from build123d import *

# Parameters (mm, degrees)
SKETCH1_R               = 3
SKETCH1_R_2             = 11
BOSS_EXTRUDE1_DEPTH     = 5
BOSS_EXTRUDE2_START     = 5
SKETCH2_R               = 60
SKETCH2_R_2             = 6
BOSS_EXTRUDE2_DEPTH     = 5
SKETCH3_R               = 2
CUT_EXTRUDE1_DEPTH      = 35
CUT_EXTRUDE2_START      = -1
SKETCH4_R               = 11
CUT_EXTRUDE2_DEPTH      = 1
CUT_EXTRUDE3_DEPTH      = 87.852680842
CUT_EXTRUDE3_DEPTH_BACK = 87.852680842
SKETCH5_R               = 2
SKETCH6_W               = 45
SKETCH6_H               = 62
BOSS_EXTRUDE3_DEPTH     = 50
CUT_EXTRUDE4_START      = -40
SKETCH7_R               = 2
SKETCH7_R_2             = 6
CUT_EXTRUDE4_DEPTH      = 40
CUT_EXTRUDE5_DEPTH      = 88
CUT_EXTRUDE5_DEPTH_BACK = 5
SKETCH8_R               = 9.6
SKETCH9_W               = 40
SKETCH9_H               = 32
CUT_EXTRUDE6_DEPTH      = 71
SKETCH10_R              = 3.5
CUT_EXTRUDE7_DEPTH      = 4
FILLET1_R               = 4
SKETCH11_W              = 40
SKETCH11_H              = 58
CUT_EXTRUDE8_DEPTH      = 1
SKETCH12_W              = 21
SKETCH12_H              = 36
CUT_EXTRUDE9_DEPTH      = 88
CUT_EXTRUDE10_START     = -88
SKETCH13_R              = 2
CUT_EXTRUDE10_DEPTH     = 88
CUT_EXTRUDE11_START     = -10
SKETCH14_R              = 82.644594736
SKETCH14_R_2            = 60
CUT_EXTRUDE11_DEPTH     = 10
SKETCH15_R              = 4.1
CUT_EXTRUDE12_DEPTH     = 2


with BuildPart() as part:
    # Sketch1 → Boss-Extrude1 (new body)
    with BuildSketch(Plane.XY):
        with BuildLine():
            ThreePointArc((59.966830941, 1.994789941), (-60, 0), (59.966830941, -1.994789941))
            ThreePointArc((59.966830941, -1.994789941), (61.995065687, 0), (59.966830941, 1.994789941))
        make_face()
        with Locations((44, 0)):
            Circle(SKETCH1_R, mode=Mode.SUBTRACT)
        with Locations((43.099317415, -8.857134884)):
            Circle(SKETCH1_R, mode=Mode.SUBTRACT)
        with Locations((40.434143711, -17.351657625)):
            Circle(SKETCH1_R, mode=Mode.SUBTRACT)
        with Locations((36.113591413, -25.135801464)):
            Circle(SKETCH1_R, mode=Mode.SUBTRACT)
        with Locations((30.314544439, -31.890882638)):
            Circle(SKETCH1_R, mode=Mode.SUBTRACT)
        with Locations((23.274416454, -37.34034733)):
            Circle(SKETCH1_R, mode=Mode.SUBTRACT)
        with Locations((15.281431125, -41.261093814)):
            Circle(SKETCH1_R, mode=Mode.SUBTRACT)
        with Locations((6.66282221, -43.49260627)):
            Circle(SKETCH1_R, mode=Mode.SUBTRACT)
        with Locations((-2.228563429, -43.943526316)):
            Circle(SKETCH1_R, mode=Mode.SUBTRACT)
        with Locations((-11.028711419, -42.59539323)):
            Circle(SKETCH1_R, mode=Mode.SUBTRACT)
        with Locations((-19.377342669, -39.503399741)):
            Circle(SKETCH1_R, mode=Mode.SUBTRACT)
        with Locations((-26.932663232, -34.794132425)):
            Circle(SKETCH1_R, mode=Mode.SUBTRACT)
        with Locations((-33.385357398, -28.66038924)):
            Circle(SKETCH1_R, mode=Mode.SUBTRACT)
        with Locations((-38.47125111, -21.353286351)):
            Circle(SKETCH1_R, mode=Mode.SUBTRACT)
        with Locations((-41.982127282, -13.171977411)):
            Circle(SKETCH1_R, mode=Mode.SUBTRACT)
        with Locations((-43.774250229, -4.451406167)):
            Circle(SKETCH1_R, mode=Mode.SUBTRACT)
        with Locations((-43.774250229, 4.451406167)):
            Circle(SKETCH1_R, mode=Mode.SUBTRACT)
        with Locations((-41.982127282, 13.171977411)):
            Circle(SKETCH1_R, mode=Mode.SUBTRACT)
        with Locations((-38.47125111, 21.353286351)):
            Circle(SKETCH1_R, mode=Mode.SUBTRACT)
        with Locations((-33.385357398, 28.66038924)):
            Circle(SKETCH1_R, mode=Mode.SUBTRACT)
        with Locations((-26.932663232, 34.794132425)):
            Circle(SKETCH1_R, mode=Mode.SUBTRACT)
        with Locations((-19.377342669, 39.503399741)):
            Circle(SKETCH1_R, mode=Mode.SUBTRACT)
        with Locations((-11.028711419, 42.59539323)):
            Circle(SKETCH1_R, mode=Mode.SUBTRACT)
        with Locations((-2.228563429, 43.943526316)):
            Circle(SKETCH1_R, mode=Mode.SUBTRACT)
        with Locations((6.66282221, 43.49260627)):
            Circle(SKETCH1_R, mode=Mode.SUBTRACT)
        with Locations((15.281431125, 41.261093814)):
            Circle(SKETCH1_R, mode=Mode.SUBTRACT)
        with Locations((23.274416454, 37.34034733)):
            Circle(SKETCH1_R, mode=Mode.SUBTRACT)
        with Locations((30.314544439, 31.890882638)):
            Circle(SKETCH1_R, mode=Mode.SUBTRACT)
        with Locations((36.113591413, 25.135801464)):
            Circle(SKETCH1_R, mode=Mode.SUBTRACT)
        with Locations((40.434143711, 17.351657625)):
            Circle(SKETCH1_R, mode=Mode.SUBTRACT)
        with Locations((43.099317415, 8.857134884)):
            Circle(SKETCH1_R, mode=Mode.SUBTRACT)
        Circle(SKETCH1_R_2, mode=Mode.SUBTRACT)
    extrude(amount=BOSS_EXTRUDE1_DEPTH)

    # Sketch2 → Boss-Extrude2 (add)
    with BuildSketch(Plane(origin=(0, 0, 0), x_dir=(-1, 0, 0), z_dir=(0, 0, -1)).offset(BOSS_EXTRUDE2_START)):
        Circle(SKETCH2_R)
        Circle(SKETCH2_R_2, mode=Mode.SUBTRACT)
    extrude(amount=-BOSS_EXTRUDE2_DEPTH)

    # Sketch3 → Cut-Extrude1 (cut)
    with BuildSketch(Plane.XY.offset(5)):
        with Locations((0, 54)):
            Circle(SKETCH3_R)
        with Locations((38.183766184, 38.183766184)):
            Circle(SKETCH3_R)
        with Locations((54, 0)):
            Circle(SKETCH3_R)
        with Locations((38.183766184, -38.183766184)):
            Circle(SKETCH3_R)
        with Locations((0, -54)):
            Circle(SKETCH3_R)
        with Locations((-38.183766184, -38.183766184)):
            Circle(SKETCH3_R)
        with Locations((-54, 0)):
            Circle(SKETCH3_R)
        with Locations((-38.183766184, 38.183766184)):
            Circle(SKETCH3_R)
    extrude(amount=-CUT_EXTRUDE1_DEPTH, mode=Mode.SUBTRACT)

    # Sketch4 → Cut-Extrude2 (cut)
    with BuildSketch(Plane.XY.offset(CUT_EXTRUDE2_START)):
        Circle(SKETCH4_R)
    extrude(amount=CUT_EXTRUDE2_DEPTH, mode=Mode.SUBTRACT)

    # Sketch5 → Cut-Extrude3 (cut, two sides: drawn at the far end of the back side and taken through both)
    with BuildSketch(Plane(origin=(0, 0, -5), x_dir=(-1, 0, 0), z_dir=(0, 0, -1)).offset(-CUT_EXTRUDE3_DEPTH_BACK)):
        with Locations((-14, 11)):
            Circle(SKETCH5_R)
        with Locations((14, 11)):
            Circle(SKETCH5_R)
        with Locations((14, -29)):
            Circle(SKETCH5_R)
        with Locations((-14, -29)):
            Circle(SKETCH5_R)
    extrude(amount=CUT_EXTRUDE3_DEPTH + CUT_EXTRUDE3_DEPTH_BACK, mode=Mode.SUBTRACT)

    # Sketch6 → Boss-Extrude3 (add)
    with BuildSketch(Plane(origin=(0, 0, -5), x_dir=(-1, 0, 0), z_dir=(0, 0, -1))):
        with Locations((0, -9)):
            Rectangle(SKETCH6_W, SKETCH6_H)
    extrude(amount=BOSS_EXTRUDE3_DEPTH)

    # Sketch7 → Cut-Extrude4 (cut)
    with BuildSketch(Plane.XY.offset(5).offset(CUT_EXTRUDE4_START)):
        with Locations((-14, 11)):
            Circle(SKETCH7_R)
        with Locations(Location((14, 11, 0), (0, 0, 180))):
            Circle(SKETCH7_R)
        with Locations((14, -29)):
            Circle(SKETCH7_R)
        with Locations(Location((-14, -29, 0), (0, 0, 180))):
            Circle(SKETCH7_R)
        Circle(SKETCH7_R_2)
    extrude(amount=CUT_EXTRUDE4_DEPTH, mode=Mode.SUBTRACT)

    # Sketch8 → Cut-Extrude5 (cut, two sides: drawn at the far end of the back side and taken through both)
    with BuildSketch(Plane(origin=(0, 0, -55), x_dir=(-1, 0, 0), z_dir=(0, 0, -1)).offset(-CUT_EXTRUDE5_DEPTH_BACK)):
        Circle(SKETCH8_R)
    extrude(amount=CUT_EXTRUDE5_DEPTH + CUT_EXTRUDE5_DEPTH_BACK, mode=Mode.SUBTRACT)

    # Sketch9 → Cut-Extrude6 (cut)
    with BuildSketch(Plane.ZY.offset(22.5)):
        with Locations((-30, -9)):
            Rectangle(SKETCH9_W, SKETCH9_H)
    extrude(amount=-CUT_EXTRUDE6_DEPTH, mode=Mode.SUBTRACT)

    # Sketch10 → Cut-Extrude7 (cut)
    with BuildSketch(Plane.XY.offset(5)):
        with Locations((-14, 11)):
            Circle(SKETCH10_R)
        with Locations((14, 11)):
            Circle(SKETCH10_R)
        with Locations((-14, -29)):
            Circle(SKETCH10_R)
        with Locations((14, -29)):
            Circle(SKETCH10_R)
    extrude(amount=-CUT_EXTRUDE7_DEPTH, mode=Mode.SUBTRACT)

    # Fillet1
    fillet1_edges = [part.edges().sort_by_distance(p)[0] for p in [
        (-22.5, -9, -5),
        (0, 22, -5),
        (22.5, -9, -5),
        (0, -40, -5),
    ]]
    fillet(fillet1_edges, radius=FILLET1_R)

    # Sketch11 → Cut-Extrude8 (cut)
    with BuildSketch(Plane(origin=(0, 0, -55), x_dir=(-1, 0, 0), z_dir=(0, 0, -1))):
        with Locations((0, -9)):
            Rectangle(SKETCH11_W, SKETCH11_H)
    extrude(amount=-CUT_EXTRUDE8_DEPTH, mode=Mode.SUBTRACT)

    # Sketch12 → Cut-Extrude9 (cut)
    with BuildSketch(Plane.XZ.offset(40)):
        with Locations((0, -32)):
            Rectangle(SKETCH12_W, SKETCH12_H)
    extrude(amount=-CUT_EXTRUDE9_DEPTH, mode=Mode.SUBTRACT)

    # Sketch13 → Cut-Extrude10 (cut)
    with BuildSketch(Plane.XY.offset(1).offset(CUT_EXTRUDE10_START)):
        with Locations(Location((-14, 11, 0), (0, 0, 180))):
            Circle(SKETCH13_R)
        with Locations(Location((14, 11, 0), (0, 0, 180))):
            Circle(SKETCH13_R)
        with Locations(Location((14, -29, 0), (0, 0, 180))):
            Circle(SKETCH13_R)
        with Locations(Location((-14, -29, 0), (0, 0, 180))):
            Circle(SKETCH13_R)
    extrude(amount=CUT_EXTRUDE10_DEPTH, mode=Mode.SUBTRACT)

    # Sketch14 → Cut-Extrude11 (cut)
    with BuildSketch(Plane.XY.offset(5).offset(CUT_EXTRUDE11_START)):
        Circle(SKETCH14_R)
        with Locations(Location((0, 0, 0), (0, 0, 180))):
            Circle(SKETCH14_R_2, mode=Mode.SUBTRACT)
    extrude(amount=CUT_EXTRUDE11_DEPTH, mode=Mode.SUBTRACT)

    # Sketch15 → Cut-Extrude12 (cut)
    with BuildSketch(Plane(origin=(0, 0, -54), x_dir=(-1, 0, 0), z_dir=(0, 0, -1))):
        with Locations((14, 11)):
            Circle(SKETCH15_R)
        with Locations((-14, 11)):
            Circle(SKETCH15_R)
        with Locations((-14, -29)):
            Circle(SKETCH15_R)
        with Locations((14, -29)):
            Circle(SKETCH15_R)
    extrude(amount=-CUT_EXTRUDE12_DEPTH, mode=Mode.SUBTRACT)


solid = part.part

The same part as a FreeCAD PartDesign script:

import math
import FreeCAD as App
import Part
import Sketcher

V = App.Vector
Q = App.Units.Quantity


def edges_at(feature, points):
    """Names of the edges that pass closest to the given points."""
    edges = feature.Shape.Edges
    near = lambda p: min(range(len(edges)), key=lambda i: edges[i].distToShape(Part.Vertex(*p))[0])
    return sorted({f"Edge{near(p) + 1}" for p in points})


def add_polygon(sketch, points):
    """Adds a closed chain of lines whose ends are joined by coincident constraints."""
    first, n = sketch.GeometryCount, len(points)
    for a, b in zip(points, points[1:] + points[:1]):
        sketch.addGeometry(Part.LineSegment(App.Vector(*a, 0), App.Vector(*b, 0)), False)
    for i in range(n):
        sketch.addConstraint(Sketcher.Constraint("Coincident", first + i, 2, first + (i + 1) % n, 1))

doc = App.newDocument("Part")
body = doc.addObject("PartDesign::Body", "Body")

# Sketch on XY plane
sketch1 = body.newObject("Sketcher::SketchObject", "Sketch")
sketch1.AttachmentSupport = (doc.getObject("XY_Plane"), [""])
sketch1.MapMode = "FlatFace"
sketch1.addGeometry([
    Part.ArcOfCircle(Part.Circle(V(0, 0, 0), V(0, 0, 1), 60), math.radians(2), math.radians(358)),  # 0
    Part.ArcOfCircle(Part.Circle(V(60, 0, 0), V(0, 0, 1), 2), math.radians(-91), math.radians(91)),  # 1
    Part.Circle(V(-26.9, -34.8, 0), V(0, 0, 1), 3),  # 2
    Part.Circle(V(-33.4, -28.7, 0), V(0, 0, 1), 3),  # 3
    Part.Circle(V(-19.4, -39.5, 0), V(0, 0, 1), 3),  # 4
    Part.Circle(V(-11, -42.6, 0), V(0, 0, 1), 3),  # 5
    Part.Circle(V(-2.2, -43.9, 0), V(0, 0, 1), 3),  # 6
    Part.Circle(V(-38.5, -21.4, 0), V(0, 0, 1), 3),  # 7
    Part.Circle(V(-42, -13.2, 0), V(0, 0, 1), 3),  # 8
    Part.Circle(V(-43.8, -4.5, 0), V(0, 0, 1), 3),  # 9
    Part.Circle(V(6.7, -43.5, 0), V(0, 0, 1), 3),  # 10
    Part.Circle(V(15.3, -41.3, 0), V(0, 0, 1), 3),  # 11
    Part.Circle(V(23.3, -37.3, 0), V(0, 0, 1), 3),  # 12
    Part.Circle(V(30.3, -31.9, 0), V(0, 0, 1), 3),  # 13
    Part.Circle(V(36.1, -25.1, 0), V(0, 0, 1), 3),  # 14
    Part.Circle(V(40.4, -17.4, 0), V(0, 0, 1), 3),  # 15
    Part.Circle(V(43.1, -8.9, 0), V(0, 0, 1), 3),  # 16
    Part.Circle(V(-43.8, 4.5, 0), V(0, 0, 1), 3),  # 17
    Part.Circle(V(-42, 13.2, 0), V(0, 0, 1), 3),  # 18
    Part.Circle(V(-38.5, 21.4, 0), V(0, 0, 1), 3),  # 19
    Part.Circle(V(0, 0, 0), V(0, 0, 1), 11),  # 20
    Part.Circle(V(-33.4, 28.7, 0), V(0, 0, 1), 3),  # 21
    Part.Circle(V(-26.9, 34.8, 0), V(0, 0, 1), 3),  # 22
    Part.Circle(V(-19.4, 39.5, 0), V(0, 0, 1), 3),  # 23
    Part.Circle(V(-11, 42.6, 0), V(0, 0, 1), 3),  # 24
    Part.Circle(V(-2.2, 43.9, 0), V(0, 0, 1), 3),  # 25
    Part.Circle(V(44, 0, 0), V(0, 0, 1), 3),  # 26
    Part.Circle(V(43.1, 8.9, 0), V(0, 0, 1), 3),  # 27
    Part.Circle(V(40.4, 17.4, 0), V(0, 0, 1), 3),  # 28
    Part.Circle(V(6.7, 43.5, 0), V(0, 0, 1), 3),  # 29
    Part.Circle(V(23.3, 37.3, 0), V(0, 0, 1), 3),  # 30
    Part.Circle(V(15.3, 41.3, 0), V(0, 0, 1), 3),  # 31
    Part.Circle(V(30.3, 31.9, 0), V(0, 0, 1), 3),  # 32
    Part.Circle(V(36.1, 25.1, 0), V(0, 0, 1), 3),  # 33
], False)
sketch1.addConstraint([
    Sketcher.Constraint("Coincident", 0, 1, 1, 2),
    Sketcher.Constraint("Coincident", 1, 1, 0, 2),
    Sketcher.Constraint("Coincident", 0, 3, -1, 1),
    Sketcher.Constraint("Coincident", 20, 3, -1, 1),
    Sketcher.Constraint("Equal", 2, 3),
    Sketcher.Constraint("Equal", 3, 4),
    Sketcher.Constraint("Equal", 4, 5),
    Sketcher.Constraint("Equal", 5, 6),
    Sketcher.Constraint("Equal", 6, 7),
    Sketcher.Constraint("Equal", 7, 8),
    Sketcher.Constraint("Equal", 8, 9),
    Sketcher.Constraint("Equal", 9, 10),
    Sketcher.Constraint("Equal", 10, 11),
    Sketcher.Constraint("Equal", 11, 12),
    Sketcher.Constraint("Equal", 12, 13),
    Sketcher.Constraint("Equal", 13, 14),
    Sketcher.Constraint("Equal", 14, 15),
    Sketcher.Constraint("Equal", 15, 16),
    Sketcher.Constraint("Equal", 16, 17),
    Sketcher.Constraint("Equal", 17, 18),
    Sketcher.Constraint("Equal", 18, 19),
    Sketcher.Constraint("Equal", 19, 21),
    Sketcher.Constraint("Equal", 21, 22),
    Sketcher.Constraint("Equal", 22, 23),
    Sketcher.Constraint("Equal", 23, 24),
    Sketcher.Constraint("Equal", 24, 25),
    Sketcher.Constraint("Equal", 25, 26),
    Sketcher.Constraint("Equal", 26, 27),
    Sketcher.Constraint("Equal", 27, 28),
    Sketcher.Constraint("Equal", 28, 29),
    Sketcher.Constraint("Equal", 29, 30),
    Sketcher.Constraint("Equal", 30, 31),
    Sketcher.Constraint("Equal", 31, 32),
    Sketcher.Constraint("Equal", 32, 33),
    Sketcher.Constraint("Symmetric", 9, 3, 17, 3, -1),
    Sketcher.Constraint("Symmetric", 8, 3, 18, 3, -1),
    Sketcher.Constraint("Symmetric", 7, 3, 19, 3, -1),
    Sketcher.Constraint("Symmetric", 3, 3, 21, 3, -1),
    Sketcher.Constraint("Symmetric", 2, 3, 22, 3, -1),
    Sketcher.Constraint("Symmetric", 4, 3, 23, 3, -1),
    Sketcher.Constraint("Symmetric", 5, 3, 24, 3, -1),
    Sketcher.Constraint("Symmetric", 6, 3, 25, 3, -1),
    Sketcher.Constraint("Symmetric", 16, 3, 27, 3, -1),
    Sketcher.Constraint("Symmetric", 15, 3, 28, 3, -1),
    Sketcher.Constraint("Symmetric", 10, 3, 29, 3, -1),
    Sketcher.Constraint("Symmetric", 12, 3, 30, 3, -1),
    Sketcher.Constraint("Symmetric", 11, 3, 31, 3, -1),
    Sketcher.Constraint("Symmetric", 13, 3, 32, 3, -1),
    Sketcher.Constraint("Symmetric", 14, 3, 33, 3, -1),
    Sketcher.Constraint("PointOnObject", 1, 3, -1),
    Sketcher.Constraint("PointOnObject", 26, 3, -1),
    Sketcher.Constraint("Diameter", 2, Q("6 mm")),
    Sketcher.Constraint("Diameter", 20, Q("22 mm")),
    Sketcher.Constraint("Radius", 0, Q("60 mm")),
    Sketcher.Constraint("DistanceX", -1, 1, 1, 3, Q("60 mm")),
    Sketcher.Constraint("DistanceX", -1, 1, 26, 3, Q("44 mm")),
    Sketcher.Constraint("Radius", 1, Q("1.995066 mm")),
    Sketcher.Constraint("DistanceX", 9, 3, 7, 3, Q("5.302999 mm")),
    Sketcher.Constraint("DistanceY", 4, 3, -1, 1, Q("39.5034 mm")),
    Sketcher.Constraint("DistanceY", 14, 3, -1, 1, Q("25.135801 mm")),
    Sketcher.Constraint("DistanceX", 2, 3, 6, 3, Q("24.7041 mm")),
    Sketcher.Constraint("DistanceY", 5, 3, 11, 3, Q("1.334299 mm")),
    Sketcher.Constraint("DistanceX", 13, 3, 15, 3, Q("10.119599 mm")),
    Sketcher.Constraint("DistanceX", 12, 3, 16, 3, Q("19.824901 mm")),
    Sketcher.Constraint("DistanceY", 3, 3, -1, 1, Q("28.660389 mm")),
    Sketcher.Constraint("DistanceX", 5, 3, -1, 1, Q("11.028711 mm")),
    Sketcher.Constraint("DistanceX", 7, 3, -1, 1, Q("38.471251 mm")),
    Sketcher.Constraint("DistanceX", -1, 1, 11, 3, Q("15.281431 mm")),
    Sketcher.Constraint("DistanceX", -1, 1, 14, 3, Q("36.113591 mm")),
    Sketcher.Constraint("DistanceX", 2, 3, 4, 3, Q("7.555321 mm")),
    Sketcher.Constraint("DistanceX", 4, 3, 5, 3, Q("8.348631 mm")),
    Sketcher.Constraint("DistanceY", 5, 3, 2, 3, Q("7.801261 mm")),
    Sketcher.Constraint("DistanceY", 6, 3, 7, 3, Q("22.59024 mm")),
    Sketcher.Constraint("DistanceY", 7, 3, 8, 3, Q("8.181309 mm")),
    Sketcher.Constraint("DistanceX", 8, 3, 3, 3, Q("8.59677 mm")),
    Sketcher.Constraint("DistanceY", 3, 3, 8, 3, Q("15.488412 mm")),
    Sketcher.Constraint("DistanceY", 8, 3, 9, 3, Q("8.720571 mm")),
    Sketcher.Constraint("DistanceY", 6, 3, 10, 3, Q("0.45092 mm")),
    Sketcher.Constraint("DistanceX", 3, 3, 10, 3, Q("40.04818 mm")),
    Sketcher.Constraint("DistanceX", 10, 3, 11, 3, Q("8.618609 mm")),
    Sketcher.Constraint("DistanceY", 10, 3, 12, 3, Q("6.152259 mm")),
    Sketcher.Constraint("DistanceX", 6, 3, 12, 3, Q("25.50298 mm")),
    Sketcher.Constraint("DistanceY", 11, 3, 13, 3, Q("9.370211 mm")),
    Sketcher.Constraint("DistanceY", 13, 3, 14, 3, Q("6.755081 mm")),
    Sketcher.Constraint("DistanceY", 12, 3, 15, 3, Q("19.98869 mm")),
    Sketcher.Constraint("DistanceY", 16, 3, 27, 3, Q("17.71427 mm")),
    Sketcher.Constraint("DistanceX", -1, 1, 13, 3, Q("30.314544 mm")),
])
pad1 = body.newObject("PartDesign::Pad", "Pad")
pad1.Profile = sketch1
pad1.Length = 5

# Sketch on XY plane
sketch2 = body.newObject("Sketcher::SketchObject", "Sketch001")
sketch2.AttachmentSupport = (doc.getObject("XY_Plane"), [""])
sketch2.MapMode = "FlatFace"
sketch2.AttachmentOffset = App.Placement(V(0, 0, -5), App.Rotation())
sketch2.addGeometry([
    Part.Circle(V(0, 0, 0), V(0, 0, 1), 60),
    Part.Circle(V(0, 0, 0), V(0, 0, 1), 6),
], False)
sketch2.addConstraint([
    Sketcher.Constraint("Coincident", 0, 3, -1, 1),
    Sketcher.Constraint("Coincident", 1, 3, -1, 1),
    Sketcher.Constraint("Diameter", 0, Q("120 mm")),
    Sketcher.Constraint("Diameter", 1, Q("12 mm")),
])
pad2 = body.newObject("PartDesign::Pad", "Pad001")
pad2.Profile = sketch2
pad2.Length = 5

# Sketch on XY plane
sketch3 = body.newObject("Sketcher::SketchObject", "Sketch002")
sketch3.AttachmentSupport = (doc.getObject("XY_Plane"), [""])
sketch3.MapMode = "FlatFace"
sketch3.AttachmentOffset = App.Placement(V(0, 0, 5), App.Rotation())
sketch3.addGeometry([
    Part.Circle(V(0, 54, 0), V(0, 0, 1), 2),  # 0
    Part.Circle(V(38.2, 38.2, 0), V(0, 0, 1), 2),  # 1
    Part.Circle(V(54, 0, 0), V(0, 0, 1), 2),  # 2
    Part.Circle(V(38.2, -38.2, 0), V(0, 0, 1), 2),  # 3
    Part.Circle(V(0, -54, 0), V(0, 0, 1), 2),  # 4
    Part.Circle(V(-38.2, -38.2, 0), V(0, 0, 1), 2),  # 5
    Part.Circle(V(-54, 0, 0), V(0, 0, 1), 2),  # 6
    Part.Circle(V(-38.2, 38.2, 0), V(0, 0, 1), 2),  # 7
], False)
sketch3.addConstraint([
    Sketcher.Constraint("Equal", 0, 1),
    Sketcher.Constraint("Equal", 1, 2),
    Sketcher.Constraint("Equal", 2, 3),
    Sketcher.Constraint("Equal", 3, 4),
    Sketcher.Constraint("Equal", 4, 5),
    Sketcher.Constraint("Equal", 5, 6),
    Sketcher.Constraint("Equal", 6, 7),
    Sketcher.Constraint("Symmetric", 0, 3, 4, 3, -1, 1),
    Sketcher.Constraint("Symmetric", 1, 3, 5, 3, -1, 1),
    Sketcher.Constraint("Symmetric", 2, 3, 6, 3, -1, 1),
    Sketcher.Constraint("Symmetric", 3, 3, 7, 3, -1, 1),
    Sketcher.Constraint("Symmetric", 3, 3, 5, 3, -2),
    Sketcher.Constraint("PointOnObject", 0, 3, -2),
    Sketcher.Constraint("PointOnObject", 2, 3, -1),
    Sketcher.Constraint("Diameter", 0, Q("4 mm")),
    Sketcher.Constraint("DistanceY", -1, 1, 0, 3, Q("54 mm")),
    Sketcher.Constraint("DistanceX", -1, 1, 2, 3, Q("54 mm")),
    Sketcher.Constraint("DistanceX", -1, 1, 1, 3, Q("38.183766 mm")),
    Sketcher.Constraint("DistanceY", -1, 1, 1, 3, Q("38.183766 mm")),
])
pocket1 = body.newObject("PartDesign::Pocket", "Pocket")
pocket1.Profile = sketch3
pocket1.Length = 35

# Sketch on XY plane
sketch4 = body.newObject("Sketcher::SketchObject", "Sketch003")
sketch4.AttachmentSupport = (doc.getObject("XY_Plane"), [""])
sketch4.MapMode = "FlatFace"
sketch4.AttachmentOffset = App.Placement(V(0, 0, -1), App.Rotation())
sketch4.addGeometry(Part.Circle(V(0, 0, 0), V(0, 0, 1), 11), False)
sketch4.addConstraint([
    Sketcher.Constraint("Coincident", 0, 3, -1, 1),
    Sketcher.Constraint("Diameter", 0, Q("22 mm")),
])
pocket2 = body.newObject("PartDesign::Pocket", "Pocket001")
pocket2.Profile = sketch4
pocket2.Length = 1
pocket2.Reversed = True

# Sketch on XY plane
sketch5 = body.newObject("Sketcher::SketchObject", "Sketch004")
sketch5.AttachmentSupport = (doc.getObject("XY_Plane"), [""])
sketch5.MapMode = "FlatFace"
sketch5.AttachmentOffset = App.Placement(V(0, 0, -5), App.Rotation())
sketch5.addGeometry([
    Part.Circle(V(14, 11, 0), V(0, 0, 1), 2),
    Part.Circle(V(-14, 11, 0), V(0, 0, 1), 2),
    Part.Circle(V(-14, -29, 0), V(0, 0, 1), 2),
    Part.Circle(V(14, -29, 0), V(0, 0, 1), 2),
], False)
sketch5.addConstraint([
    Sketcher.Constraint("Equal", 0, 1),
    Sketcher.Constraint("Equal", 1, 2),
    Sketcher.Constraint("Equal", 2, 3),
    Sketcher.Constraint("Symmetric", 0, 3, 1, 3, -2),
    Sketcher.Constraint("Symmetric", 2, 3, 3, 3, -2),
    Sketcher.Constraint("Vertical", 1, 3, 2, 3),
    Sketcher.Constraint("Diameter", 0, Q("4 mm")),
    Sketcher.Constraint("DistanceX", -1, 1, 0, 3, Q("14 mm")),
    Sketcher.Constraint("DistanceY", -1, 1, 0, 3, Q("11 mm")),
    Sketcher.Constraint("DistanceY", 2, 3, -1, 1, Q("29 mm")),
])
pocket3 = body.newObject("PartDesign::Pocket", "Pocket002")
pocket3.Profile = sketch5
pocket3.Type = "ThroughAll"
pocket3.Midplane = True

# Sketch on XY plane
sketch6 = body.newObject("Sketcher::SketchObject", "Sketch005")
sketch6.AttachmentSupport = (doc.getObject("XY_Plane"), [""])
sketch6.MapMode = "FlatFace"
sketch6.AttachmentOffset = App.Placement(V(0, 0, -5), App.Rotation())
add_polygon(sketch6, [(22, 22), (22, -40), (-22, -40), (-22, 22)])  # lines 0-3
sketch6.addConstraint([
    Sketcher.Constraint("Vertical", 0),
    Sketcher.Constraint("Horizontal", 1),
    Sketcher.Constraint("Vertical", 2),
    Sketcher.Constraint("Horizontal", 3),
    Sketcher.Constraint("DistanceX", 1, 2, 1, 1, Q("45 mm")),
    Sketcher.Constraint("DistanceY", 0, 2, 0, 1, Q("62 mm")),
    Sketcher.Constraint("DistanceY", 0, 2, -1, 1, Q("40 mm")),
    Sketcher.Constraint("DistanceX", -1, 1, 0, 2, Q("22.5 mm")),
])
pad3 = body.newObject("PartDesign::Pad", "Pad002")
pad3.Profile = sketch6
pad3.Length = 50
pad3.Reversed = True

# Sketch on XY plane
sketch7 = body.newObject("Sketcher::SketchObject", "Sketch006")
sketch7.AttachmentSupport = (doc.getObject("XY_Plane"), [""])
sketch7.MapMode = "FlatFace"
sketch7.AttachmentOffset = App.Placement(V(0, 0, -35), App.Rotation())
sketch7.addGeometry([
    Part.Circle(V(-14, 11, 0), V(0, 0, 1), 2),  # 0
    Part.Circle(V(14, 11, 0), V(0, 0, 1), 2),  # 1
    Part.Circle(V(14, -29, 0), V(0, 0, 1), 2),  # 2
    Part.Circle(V(-14, -29, 0), V(0, 0, 1), 2),  # 3
    Part.Circle(V(0, 0, 0), V(0, 0, 1), 6),  # 4
], False)
sketch7.addConstraint([
    Sketcher.Constraint("Coincident", 4, 3, -1, 1),
    Sketcher.Constraint("Equal", 0, 1),
    Sketcher.Constraint("Equal", 1, 2),
    Sketcher.Constraint("Equal", 2, 3),
    Sketcher.Constraint("Symmetric", 0, 3, 1, 3, -2),
    Sketcher.Constraint("Symmetric", 2, 3, 3, 3, -2),
    Sketcher.Constraint("Vertical", 1, 3, 2, 3),
    Sketcher.Constraint("Diameter", 0, Q("4 mm")),
    Sketcher.Constraint("Diameter", 4, Q("12 mm")),
    Sketcher.Constraint("DistanceX", 0, 3, -1, 1, Q("14 mm")),
    Sketcher.Constraint("DistanceY", -1, 1, 0, 3, Q("11 mm")),
    Sketcher.Constraint("DistanceY", 2, 3, -1, 1, Q("29 mm")),
])
pocket4 = body.newObject("PartDesign::Pocket", "Pocket003")
pocket4.Profile = sketch7
pocket4.Length = 40
pocket4.Reversed = True

# Sketch on XY plane
sketch8 = body.newObject("Sketcher::SketchObject", "Sketch007")
sketch8.AttachmentSupport = (doc.getObject("XY_Plane"), [""])
sketch8.MapMode = "FlatFace"
sketch8.AttachmentOffset = App.Placement(V(0, 0, -55), App.Rotation())
sketch8.addGeometry(Part.Circle(V(0, 0, 0), V(0, 0, 1), 10), False)
sketch8.addConstraint([
    Sketcher.Constraint("Coincident", 0, 3, -1, 1),
    Sketcher.Constraint("Diameter", 0, Q("19.2 mm")),
])
pocket5 = body.newObject("PartDesign::Pocket", "Pocket004")
pocket5.Profile = sketch8
pocket5.Type = "TwoLengths"
pocket5.Length = 88
pocket5.Length2 = 5

# Sketch on YZ plane
sketch9 = body.newObject("Sketcher::SketchObject", "Sketch008")
sketch9.AttachmentSupport = (doc.getObject("YZ_Plane"), [""])
sketch9.MapMode = "FlatFace"
sketch9.AttachmentOffset = App.Placement(V(0, 0, -22.5), App.Rotation())
add_polygon(sketch9, [(7, -50), (-25, -50), (-25, -10), (7, -10)])  # lines 0-3
sketch9.addConstraint([
    Sketcher.Constraint("Horizontal", 0),
    Sketcher.Constraint("Vertical", 1),
    Sketcher.Constraint("Horizontal", 2),
    Sketcher.Constraint("Vertical", 3),
    Sketcher.Constraint("DistanceX", 0, 2, 0, 1, Q("32 mm")),
    Sketcher.Constraint("DistanceY", 1, 1, 1, 2, Q("40 mm")),
    Sketcher.Constraint("DistanceX", 0, 2, -1, 1, Q("25 mm")),
    Sketcher.Constraint("DistanceY", 0, 2, -1, 1, Q("50 mm")),
])
pocket6 = body.newObject("PartDesign::Pocket", "Pocket005")
pocket6.Profile = sketch9
pocket6.Length = 71
pocket6.Reversed = True

# Sketch on XY plane
sketch10 = body.newObject("Sketcher::SketchObject", "Sketch009")
sketch10.AttachmentSupport = (doc.getObject("XY_Plane"), [""])
sketch10.MapMode = "FlatFace"
sketch10.AttachmentOffset = App.Placement(V(0, 0, 5), App.Rotation())
sketch10.addGeometry([
    Part.Circle(V(-14, 11, 0), V(0, 0, 1), 3.5),
    Part.Circle(V(14, 11, 0), V(0, 0, 1), 3.5),
    Part.Circle(V(-14, -29, 0), V(0, 0, 1), 3.5),
    Part.Circle(V(14, -29, 0), V(0, 0, 1), 3.5),
], False)
sketch10.addConstraint([
    Sketcher.Constraint("Equal", 0, 1),
    Sketcher.Constraint("Equal", 1, 2),
    Sketcher.Constraint("Equal", 2, 3),
    Sketcher.Constraint("Symmetric", 0, 3, 1, 3, -2),
    Sketcher.Constraint("Symmetric", 2, 3, 3, 3, -2),
    Sketcher.Constraint("Vertical", 0, 3, 2, 3),
    Sketcher.Constraint("Diameter", 0, Q("7 mm")),
    Sketcher.Constraint("DistanceX", 0, 3, -1, 1, Q("14 mm")),
    Sketcher.Constraint("DistanceY", -1, 1, 0, 3, Q("11 mm")),
    Sketcher.Constraint("DistanceY", 2, 3, -1, 1, Q("29 mm")),
])
pocket7 = body.newObject("PartDesign::Pocket", "Pocket006")
pocket7.Profile = sketch10
pocket7.Length = 4
doc.recompute()

fillet = body.newObject("PartDesign::Fillet", "Fillet")
fillet.Base = (pocket7, edges_at(pocket7, [
    (-22.5, -9, -5),
    (0, 22, -5),
    (22.5, -9, -5),
    (0, -40, -5),
]))
fillet.Radius = 4

# Sketch on XY plane
sketch11 = body.newObject("Sketcher::SketchObject", "Sketch010")
sketch11.AttachmentSupport = (doc.getObject("XY_Plane"), [""])
sketch11.MapMode = "FlatFace"
sketch11.AttachmentOffset = App.Placement(V(0, 0, -55), App.Rotation())
add_polygon(sketch11, [(20, 20), (20, -38), (-20, -38), (-20, 20)])  # lines 0-3
sketch11.addConstraint([
    Sketcher.Constraint("Vertical", 0),
    Sketcher.Constraint("Horizontal", 1),
    Sketcher.Constraint("Vertical", 2),
    Sketcher.Constraint("Horizontal", 3),
    Sketcher.Constraint("DistanceX", 1, 2, 1, 1, Q("40 mm")),
    Sketcher.Constraint("DistanceY", 0, 2, 0, 1, Q("58 mm")),
    Sketcher.Constraint("DistanceX", -1, 1, 0, 2, Q("20 mm")),
    Sketcher.Constraint("DistanceY", 0, 2, -1, 1, Q("38 mm")),
])
pocket8 = body.newObject("PartDesign::Pocket", "Pocket007")
pocket8.Profile = sketch11
pocket8.Length = 1
pocket8.Reversed = True

# Sketch on XZ plane
sketch12 = body.newObject("Sketcher::SketchObject", "Sketch011")
sketch12.AttachmentSupport = (doc.getObject("XZ_Plane"), [""])
sketch12.MapMode = "FlatFace"
sketch12.AttachmentOffset = App.Placement(V(0, 0, 40), App.Rotation())
add_polygon(sketch12, [(-10, -14), (-10, -50), (10, -50), (10, -14)])  # lines 0-3
sketch12.addConstraint([
    Sketcher.Constraint("Vertical", 0),
    Sketcher.Constraint("Horizontal", 1),
    Sketcher.Constraint("Vertical", 2),
    Sketcher.Constraint("Horizontal", 3),
    Sketcher.Constraint("DistanceX", 1, 1, 1, 2, Q("21 mm")),
    Sketcher.Constraint("DistanceY", 0, 2, 0, 1, Q("36 mm")),
    Sketcher.Constraint("DistanceY", 0, 2, -1, 1, Q("50 mm")),
    Sketcher.Constraint("DistanceX", 0, 2, -1, 1, Q("10.5 mm")),
])
pocket9 = body.newObject("PartDesign::Pocket", "Pocket008")
pocket9.Profile = sketch12
pocket9.Length = 88

# Sketch on XY plane
sketch13 = body.newObject("Sketcher::SketchObject", "Sketch012")
sketch13.AttachmentSupport = (doc.getObject("XY_Plane"), [""])
sketch13.MapMode = "FlatFace"
sketch13.AttachmentOffset = App.Placement(V(0, 0, -87), App.Rotation())
sketch13.addGeometry([
    Part.Circle(V(-14, 11, 0), V(0, 0, 1), 2),
    Part.Circle(V(14, 11, 0), V(0, 0, 1), 2),
    Part.Circle(V(14, -29, 0), V(0, 0, 1), 2),
    Part.Circle(V(-14, -29, 0), V(0, 0, 1), 2),
], False)
sketch13.addConstraint([
    Sketcher.Constraint("Equal", 0, 1),
    Sketcher.Constraint("Equal", 1, 2),
    Sketcher.Constraint("Equal", 2, 3),
    Sketcher.Constraint("Symmetric", 0, 3, 1, 3, -2),
    Sketcher.Constraint("Symmetric", 2, 3, 3, 3, -2),
    Sketcher.Constraint("Vertical", 1, 3, 2, 3),
    Sketcher.Constraint("Diameter", 0, Q("4 mm")),
    Sketcher.Constraint("DistanceX", 0, 3, -1, 1, Q("14 mm")),
    Sketcher.Constraint("DistanceY", -1, 1, 0, 3, Q("11 mm")),
    Sketcher.Constraint("DistanceY", 2, 3, -1, 1, Q("29 mm")),
])
pocket10 = body.newObject("PartDesign::Pocket", "Pocket009")
pocket10.Profile = sketch13
pocket10.Length = 88
pocket10.Reversed = True

# Sketch on XY plane
sketch14 = body.newObject("Sketcher::SketchObject", "Sketch013")
sketch14.AttachmentSupport = (doc.getObject("XY_Plane"), [""])
sketch14.MapMode = "FlatFace"
sketch14.AttachmentOffset = App.Placement(V(0, 0, -5), App.Rotation())
sketch14.addGeometry([
    Part.Circle(V(0, 0, 0), V(0, 0, 1), 83),
    Part.Circle(V(0, 0, 0), V(0, 0, 1), 60),
], False)
sketch14.addConstraint([
    Sketcher.Constraint("Coincident", 0, 3, -1, 1),
    Sketcher.Constraint("Coincident", 1, 3, -1, 1),
    Sketcher.Constraint("Diameter", 1, Q("120 mm")),
    Sketcher.Constraint("Diameter", 0, Q("165.289189 mm")),
])
pocket11 = body.newObject("PartDesign::Pocket", "Pocket010")
pocket11.Profile = sketch14
pocket11.Length = 10
pocket11.Reversed = True

# Sketch on XY plane
sketch15 = body.newObject("Sketcher::SketchObject", "Sketch014")
sketch15.AttachmentSupport = (doc.getObject("XY_Plane"), [""])
sketch15.MapMode = "FlatFace"
sketch15.AttachmentOffset = App.Placement(V(0, 0, -54), App.Rotation())
sketch15.addGeometry([
    Part.Circle(V(-14, 11, 0), V(0, 0, 1), 4.1),
    Part.Circle(V(14, 11, 0), V(0, 0, 1), 4.1),
    Part.Circle(V(14, -29, 0), V(0, 0, 1), 4.1),
    Part.Circle(V(-14, -29, 0), V(0, 0, 1), 4.1),
], False)
sketch15.addConstraint([
    Sketcher.Constraint("Equal", 0, 1),
    Sketcher.Constraint("Equal", 1, 2),
    Sketcher.Constraint("Equal", 2, 3),
    Sketcher.Constraint("Symmetric", 0, 3, 1, 3, -2),
    Sketcher.Constraint("Symmetric", 2, 3, 3, 3, -2),
    Sketcher.Constraint("Vertical", 1, 3, 2, 3),
    Sketcher.Constraint("Diameter", 0, Q("8.2 mm")),
    Sketcher.Constraint("DistanceX", 0, 3, -1, 1, Q("14 mm")),
    Sketcher.Constraint("DistanceY", -1, 1, 0, 3, Q("11 mm")),
    Sketcher.Constraint("DistanceY", 2, 3, -1, 1, Q("29 mm")),
])
pocket12 = body.newObject("PartDesign::Pocket", "Pocket011")
pocket12.Profile = sketch15
pocket12.Length = 2
pocket12.Reversed = True

doc.recompute()
